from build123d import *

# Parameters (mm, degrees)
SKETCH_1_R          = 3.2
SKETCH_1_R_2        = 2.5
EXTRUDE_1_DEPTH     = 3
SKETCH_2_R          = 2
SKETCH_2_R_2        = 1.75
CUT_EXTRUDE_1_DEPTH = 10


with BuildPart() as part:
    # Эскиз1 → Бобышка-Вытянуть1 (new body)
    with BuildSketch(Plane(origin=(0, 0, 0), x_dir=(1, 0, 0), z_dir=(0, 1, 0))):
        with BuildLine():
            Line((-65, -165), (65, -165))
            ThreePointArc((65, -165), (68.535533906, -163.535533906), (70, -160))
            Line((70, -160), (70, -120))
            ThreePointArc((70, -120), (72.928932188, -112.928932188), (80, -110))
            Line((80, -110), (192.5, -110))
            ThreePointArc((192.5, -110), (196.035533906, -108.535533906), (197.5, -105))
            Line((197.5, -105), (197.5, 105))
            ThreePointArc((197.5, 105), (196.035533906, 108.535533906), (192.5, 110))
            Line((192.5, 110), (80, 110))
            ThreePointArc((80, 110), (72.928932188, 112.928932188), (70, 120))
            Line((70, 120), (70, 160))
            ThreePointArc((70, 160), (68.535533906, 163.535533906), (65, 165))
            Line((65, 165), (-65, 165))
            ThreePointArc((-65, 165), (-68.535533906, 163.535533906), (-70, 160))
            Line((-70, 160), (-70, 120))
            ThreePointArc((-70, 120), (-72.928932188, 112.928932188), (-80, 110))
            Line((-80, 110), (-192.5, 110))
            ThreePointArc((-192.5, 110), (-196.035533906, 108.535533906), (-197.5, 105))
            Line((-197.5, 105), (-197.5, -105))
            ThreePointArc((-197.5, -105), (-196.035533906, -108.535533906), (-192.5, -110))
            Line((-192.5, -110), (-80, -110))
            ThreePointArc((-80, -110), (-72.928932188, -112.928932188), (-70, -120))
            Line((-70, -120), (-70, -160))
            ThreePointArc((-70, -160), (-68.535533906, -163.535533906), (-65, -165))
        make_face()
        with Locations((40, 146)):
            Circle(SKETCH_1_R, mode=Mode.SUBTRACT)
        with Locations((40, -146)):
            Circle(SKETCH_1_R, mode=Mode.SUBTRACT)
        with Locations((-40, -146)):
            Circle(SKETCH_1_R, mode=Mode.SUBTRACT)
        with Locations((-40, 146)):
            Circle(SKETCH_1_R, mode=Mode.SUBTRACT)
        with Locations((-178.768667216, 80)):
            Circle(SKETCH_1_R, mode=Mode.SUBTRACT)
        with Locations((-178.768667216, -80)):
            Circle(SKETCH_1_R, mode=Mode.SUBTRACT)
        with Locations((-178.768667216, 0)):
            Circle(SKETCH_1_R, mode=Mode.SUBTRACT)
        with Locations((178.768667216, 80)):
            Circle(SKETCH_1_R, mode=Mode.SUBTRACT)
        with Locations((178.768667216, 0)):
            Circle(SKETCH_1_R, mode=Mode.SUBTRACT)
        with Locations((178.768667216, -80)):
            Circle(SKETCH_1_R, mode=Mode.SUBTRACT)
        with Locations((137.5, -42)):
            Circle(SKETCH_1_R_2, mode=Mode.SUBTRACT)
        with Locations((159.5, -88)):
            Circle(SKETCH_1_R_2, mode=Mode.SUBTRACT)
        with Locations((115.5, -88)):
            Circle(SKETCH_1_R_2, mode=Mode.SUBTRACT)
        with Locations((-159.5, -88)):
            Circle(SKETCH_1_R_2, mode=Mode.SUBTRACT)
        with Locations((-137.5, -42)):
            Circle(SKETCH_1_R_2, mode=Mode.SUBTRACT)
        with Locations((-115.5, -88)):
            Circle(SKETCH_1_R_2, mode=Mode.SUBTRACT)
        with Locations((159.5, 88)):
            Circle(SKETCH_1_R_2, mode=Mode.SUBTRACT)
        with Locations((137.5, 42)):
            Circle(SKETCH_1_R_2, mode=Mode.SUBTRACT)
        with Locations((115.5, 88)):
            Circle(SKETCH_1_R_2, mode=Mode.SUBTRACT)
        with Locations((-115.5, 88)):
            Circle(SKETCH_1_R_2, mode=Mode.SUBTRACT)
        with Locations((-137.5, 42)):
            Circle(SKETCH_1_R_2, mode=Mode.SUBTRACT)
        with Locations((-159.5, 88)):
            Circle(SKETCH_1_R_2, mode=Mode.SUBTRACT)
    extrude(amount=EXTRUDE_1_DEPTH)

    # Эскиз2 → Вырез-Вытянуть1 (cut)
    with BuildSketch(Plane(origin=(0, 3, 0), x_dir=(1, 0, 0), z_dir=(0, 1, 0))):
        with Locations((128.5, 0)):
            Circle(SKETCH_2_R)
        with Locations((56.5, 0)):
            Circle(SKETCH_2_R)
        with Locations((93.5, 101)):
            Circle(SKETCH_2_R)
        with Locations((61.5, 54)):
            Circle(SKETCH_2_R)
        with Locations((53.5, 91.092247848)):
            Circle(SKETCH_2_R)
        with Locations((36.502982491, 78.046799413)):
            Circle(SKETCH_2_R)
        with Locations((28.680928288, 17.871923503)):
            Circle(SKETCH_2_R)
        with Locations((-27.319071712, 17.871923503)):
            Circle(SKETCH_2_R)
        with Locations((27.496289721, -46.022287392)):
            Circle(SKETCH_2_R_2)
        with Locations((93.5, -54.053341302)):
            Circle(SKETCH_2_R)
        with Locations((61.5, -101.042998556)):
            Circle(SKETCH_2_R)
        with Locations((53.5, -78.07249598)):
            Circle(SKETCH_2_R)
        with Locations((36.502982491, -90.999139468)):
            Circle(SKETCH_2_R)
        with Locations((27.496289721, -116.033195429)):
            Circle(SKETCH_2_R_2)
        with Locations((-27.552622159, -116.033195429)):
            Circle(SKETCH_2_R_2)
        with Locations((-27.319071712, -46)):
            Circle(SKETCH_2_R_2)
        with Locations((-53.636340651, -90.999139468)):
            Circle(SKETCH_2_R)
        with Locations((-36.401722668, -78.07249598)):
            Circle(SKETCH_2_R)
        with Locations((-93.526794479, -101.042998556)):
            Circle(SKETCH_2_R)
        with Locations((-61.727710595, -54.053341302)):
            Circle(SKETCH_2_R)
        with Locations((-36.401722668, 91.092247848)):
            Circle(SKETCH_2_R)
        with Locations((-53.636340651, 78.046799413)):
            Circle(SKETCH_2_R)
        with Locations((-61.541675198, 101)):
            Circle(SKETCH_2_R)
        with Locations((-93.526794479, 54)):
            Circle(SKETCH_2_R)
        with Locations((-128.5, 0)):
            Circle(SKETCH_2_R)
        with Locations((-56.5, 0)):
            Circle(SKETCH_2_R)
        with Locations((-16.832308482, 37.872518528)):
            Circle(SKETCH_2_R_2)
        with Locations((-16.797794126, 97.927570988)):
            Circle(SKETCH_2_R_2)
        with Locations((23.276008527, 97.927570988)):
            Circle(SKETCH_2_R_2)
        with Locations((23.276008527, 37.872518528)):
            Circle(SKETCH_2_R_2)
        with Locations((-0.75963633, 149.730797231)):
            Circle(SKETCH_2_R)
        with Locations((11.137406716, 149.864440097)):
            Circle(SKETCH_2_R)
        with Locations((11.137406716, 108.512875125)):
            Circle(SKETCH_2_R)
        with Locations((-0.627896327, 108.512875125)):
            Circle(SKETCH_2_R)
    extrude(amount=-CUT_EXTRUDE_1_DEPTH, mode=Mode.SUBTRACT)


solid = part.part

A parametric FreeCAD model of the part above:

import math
import FreeCAD as App
import Part
import Sketcher

V = App.Vector

doc = App.newDocument("Part")
params = doc.addObject("Spreadsheet::Sheet", "Params")
for row, (alias, value) in enumerate([
    ("sketch1_diameter", "5 mm"),
    ("sketch1_radius", "5 mm"),
    ("sketch1_radius2", "10 mm"),
    ("sketch1_diameter2", "6.4 mm"),
    ("sketch1_width", "130 mm"),
    ("pad1_length", "3 mm"),
    ("sketch2_diameter", "4 mm"),
    ("sketch2_diameter2", "3.5 mm"),
    ("pocket1_length", "10 mm"),
], start=1):
    params.set(f"A{row}", alias)
    params.set(f"B{row}", "=" + value)
    params.setAlias(f"B{row}", alias)

body = doc.addObject("PartDesign::Body", "Body")

# Sketch on XZ plane
sketch1 = body.newObject("Sketcher::SketchObject", "Sketch")
sketch1.AttachmentSupport = (doc.getObject("XZ_Plane"), [""])
sketch1.MapMode = "FlatFace"
sketch1.addGeometry([
    Part.LineSegment(V(-65, 165, 0), V(65, 165, 0)),  # 0
    Part.ArcOfCircle(Part.Circle(V(65, 160, 0), V(0, 0, 1), 5), math.radians(0), math.radians(90)),  # 1
    Part.LineSegment(V(70, 160, 0), V(70, 120, 0)),  # 2
    Part.ArcOfCircle(Part.Circle(V(80, 120, 0), V(0, 0, 1), 10), math.radians(180), math.radians(270)),  # 3
    Part.LineSegment(V(80, 110, 0), V(192.5, 110, 0)),  # 4
    Part.ArcOfCircle(Part.Circle(V(192.5, 105, 0), V(0, 0, 1), 5), math.radians(0), math.radians(90)),  # 5
    Part.LineSegment(V(197.5, 105, 0), V(197.5, -105, 0)),  # 6
    Part.ArcOfCircle(Part.Circle(V(192.5, -105, 0), V(0, 0, 1), 5), math.radians(-90), math.radians(0)),  # 7
    Part.LineSegment(V(192.5, -110, 0), V(80, -110, 0)),  # 8
    Part.ArcOfCircle(Part.Circle(V(80, -120, 0), V(0, 0, 1), 10), math.radians(90), math.radians(180)),  # 9
    Part.LineSegment(V(70, -120, 0), V(70, -160, 0)),  # 10
    Part.ArcOfCircle(Part.Circle(V(65, -160, 0), V(0, 0, 1), 5), math.radians(-90), math.radians(0)),  # 11
    Part.LineSegment(V(65, -165, 0), V(-65, -165, 0)),  # 12
    Part.ArcOfCircle(Part.Circle(V(-65, -160, 0), V(0, 0, 1), 5), math.radians(180), math.radians(270)),  # 13
    Part.LineSegment(V(-70, -160, 0), V(-70, -120, 0)),  # 14
    Part.ArcOfCircle(Part.Circle(V(-80, -120, 0), V(0, 0, 1), 10), math.radians(0), math.radians(90)),  # 15
    Part.LineSegment(V(-80, -110, 0), V(-192.5, -110, 0)),  # 16
    Part.ArcOfCircle(Part.Circle(V(-192.5, -105, 0), V(0, 0, 1), 5), math.radians(180), math.radians(270)),  # 17
    Part.LineSegment(V(-197.5, -105, 0), V(-197.5, 105, 0)),  # 18
    Part.ArcOfCircle(Part.Circle(V(-192.5, 105, 0), V(0, 0, 1), 5), math.radians(90), math.radians(180)),  # 19
    Part.LineSegment(V(-192.5, 110, 0), V(-80, 110, 0)),  # 20
    Part.ArcOfCircle(Part.Circle(V(-80, 120, 0), V(0, 0, 1), 10), math.radians(-90), math.radians(0)),  # 21
    Part.LineSegment(V(-70, 120, 0), V(-70, 160, 0)),  # 22
    Part.ArcOfCircle(Part.Circle(V(-65, 160, 0), V(0, 0, 1), 5), math.radians(90), math.radians(180)),  # 23
    Part.Circle(V(-159.5, 88, 0), V(0, 0, 1), 2.5),  # 24
    Part.Circle(V(-178.8, 80, 0), V(0, 0, 1), 3.2),  # 25
    Part.Circle(V(-115.5, 88, 0), V(0, 0, 1), 2.5),  # 26
    Part.Circle(V(-40, 146, 0), V(0, 0, 1), 3.2),  # 27
    Part.Circle(V(-137.5, 42, 0), V(0, 0, 1), 2.5),  # 28
    Part.Circle(V(-178.8, 0, 0), V(0, 0, 1), 3.2),  # 29
    Part.Circle(V(40, 146, 0), V(0, 0, 1), 3.2),  # 30
    Part.Circle(V(115.5, 88, 0), V(0, 0, 1), 2.5),  # 31
    Part.Circle(V(159.5, 88, 0), V(0, 0, 1), 2.5),  # 32
    Part.Circle(V(178.8, 80, 0), V(0, 0, 1), 3.2),  # 33
    Part.Circle(V(137.5, 42, 0), V(0, 0, 1), 2.5),  # 34
    Part.Circle(V(178.8, 0, 0), V(0, 0, 1), 3.2),  # 35
    Part.Circle(V(-137.5, -42, 0), V(0, 0, 1), 2.5),  # 36
    Part.Circle(V(-178.8, -80, 0), V(0, 0, 1), 3.2),  # 37
    Part.Circle(V(-159.5, -88, 0), V(0, 0, 1), 2.5),  # 38
    Part.Circle(V(-115.5, -88, 0), V(0, 0, 1), 2.5),  # 39
    Part.Circle(V(-40, -146, 0), V(0, 0, 1), 3.2),  # 40
    Part.Circle(V(137.5, -42, 0), V(0, 0, 1), 2.5),  # 41
    Part.Circle(V(40, -146, 0), V(0, 0, 1), 3.2),  # 42
    Part.Circle(V(115.5, -88, 0), V(0, 0, 1), 2.5),  # 43
    Part.Circle(V(178.8, -80, 0), V(0, 0, 1), 3.2),  # 44
    Part.Circle(V(159.5, -88, 0), V(0, 0, 1), 2.5),  # 45
], False)
sketch1.addConstraint([
    Sketcher.Constraint("Tangent", 0, 2, 1, 2),
    Sketcher.Constraint("Tangent", 1, 1, 2, 1),
    Sketcher.Constraint("Tangent", 2, 2, 3, 1),
    Sketcher.Constraint("Tangent", 3, 2, 4, 1),
    Sketcher.Constraint("Tangent", 4, 2, 5, 2),
    Sketcher.Constraint("Tangent", 5, 1, 6, 1),
    Sketcher.Constraint("Tangent", 6, 2, 7, 2),
    Sketcher.Constraint("Tangent", 7, 1, 8, 1),
    Sketcher.Constraint("Tangent", 8, 2, 9, 1),
    Sketcher.Constraint("Tangent", 9, 2, 10, 1),
    Sketcher.Constraint("Tangent", 10, 2, 11, 2),
    Sketcher.Constraint("Tangent", 11, 1, 12, 1),
    Sketcher.Constraint("Tangent", 12, 2, 13, 2),
    Sketcher.Constraint("Tangent", 13, 1, 14, 1),
    Sketcher.Constraint("Tangent", 14, 2, 15, 1),
    Sketcher.Constraint("Tangent", 15, 2, 16, 1),
    Sketcher.Constraint("Tangent", 16, 2, 17, 2),
    Sketcher.Constraint("Tangent", 17, 1, 18, 1),
    Sketcher.Constraint("Tangent", 18, 2, 19, 2),
    Sketcher.Constraint("Tangent", 19, 1, 20, 1),
    Sketcher.Constraint("Tangent", 20, 2, 21, 1),
    Sketcher.Constraint("Tangent", 21, 2, 22, 1),
    Sketcher.Constraint("Tangent", 22, 2, 23, 2),
    Sketcher.Constraint("Tangent", 23, 1, 0, 1),
    Sketcher.Constraint("Horizontal", 0),
    Sketcher.Constraint("Vertical", 2),
    Sketcher.Constraint("Horizontal", 4),
    Sketcher.Constraint("Vertical", 6),
    Sketcher.Constraint("Horizontal", 8),
    Sketcher.Constraint("Vertical", 10),
    Sketcher.Constraint("Horizontal", 12),
    Sketcher.Constraint("Vertical", 14),
    Sketcher.Constraint("Horizontal", 16),
    Sketcher.Constraint("Vertical", 18),
    Sketcher.Constraint("Horizontal", 20),
    Sketcher.Constraint("Vertical", 22),
    Sketcher.Constraint("Equal", 1, 5),
    Sketcher.Constraint("Equal", 5, 7),
    Sketcher.Constraint("Equal", 3, 9),
    Sketcher.Constraint("Equal", 7, 11),
    Sketcher.Constraint("Equal", 11, 13),
    Sketcher.Constraint("Equal", 9, 15),
    Sketcher.Constraint("Equal", 13, 17),
    Sketcher.Constraint("Equal", 17, 19),
    Sketcher.Constraint("Equal", 15, 21),
    Sketcher.Constraint("Equal", 19, 23),
    Sketcher.Constraint("Equal", 24, 26),
    Sketcher.Constraint("Equal", 25, 27),
    Sketcher.Constraint("Equal", 26, 28),
    Sketcher.Constraint("Equal", 27, 29),
    Sketcher.Constraint("Equal", 29, 30),
    Sketcher.Constraint("Equal", 28, 31),
    Sketcher.Constraint("Equal", 31, 32),
    Sketcher.Constraint("Equal", 30, 33),
    Sketcher.Constraint("Equal", 32, 34),
    Sketcher.Constraint("Equal", 33, 35),
    Sketcher.Constraint("Equal", 34, 36),
    Sketcher.Constraint("Equal", 35, 37),
    Sketcher.Constraint("Equal", 36, 38),
    Sketcher.Constraint("Equal", 38, 39),
    Sketcher.Constraint("Equal", 37, 40),
    Sketcher.Constraint("Equal", 39, 41),
    Sketcher.Constraint("Equal", 40, 42),
    Sketcher.Constraint("Equal", 41, 43),
    Sketcher.Constraint("Equal", 42, 44),
    Sketcher.Constraint("Equal", 43, 45),
    Sketcher.Constraint("Symmetric", 1, 3, 13, 3, -1, 1),
    Sketcher.Constraint("Symmetric", 5, 3, 17, 3, -1, 1),
    Sketcher.Constraint("Symmetric", 9, 3, 21, 3, -1, 1),
    Sketcher.Constraint("Symmetric", 29, 3, 35, 3, -1, 1),
    Sketcher.Constraint("Symmetric", 34, 3, 36, 3, -1, 1),
    Sketcher.Constraint("Symmetric", 33, 3, 37, 3, -1, 1),
    Sketcher.Constraint("Symmetric", 32, 3, 38, 3, -1, 1),
    Sketcher.Constraint("Symmetric", 31, 3, 39, 3, -1, 1),
    Sketcher.Constraint("Symmetric", 30, 3, 40, 3, -1, 1),
    Sketcher.Constraint("Symmetric", 28, 3, 41, 3, -1, 1),
    Sketcher.Constraint("Symmetric", 27, 3, 42, 3, -1, 1),
    Sketcher.Constraint("Symmetric", 26, 3, 43, 3, -1, 1),
    Sketcher.Constraint("Symmetric", 25, 3, 44, 3, -1, 1),
    Sketcher.Constraint("Symmetric", 24, 3, 45, 3, -1, 1),
    Sketcher.Constraint("Symmetric", 9, 3, 15, 3, -2),
    Sketcher.Constraint("Symmetric", 27, 3, 30, 3, -2),
    Sketcher.Constraint("Symmetric", 26, 3, 31, 3, -2),
    Sketcher.Constraint("Symmetric", 24, 3, 32, 3, -2),
    Sketcher.Constraint("Symmetric", 25, 3, 33, 3, -2),
    Sketcher.Constraint("Symmetric", 28, 3, 34, 3, -2),
    Sketcher.Constraint("PointOnObject", 29, 3, -1),
    Sketcher.Constraint("Horizontal", 24, 3, 26, 3),
    Sketcher.Constraint("Vertical", 25, 3, 29, 3),
    Sketcher.Constraint("Diameter", 24, 5.0),
    Sketcher.Constraint("Radius", 1, 5.0),
    Sketcher.Constraint("Radius", 3, 10.0),
    Sketcher.Constraint("Diameter", 25, 6.4),
    Sketcher.Constraint("DistanceX", 0, 1, 0, 2, 130.0),
    Sketcher.Constraint("DistanceY", 2, 2, 2, 1, 40.0),
    Sketcher.Constraint("DistanceY", 6, 2, 6, 1, 210.0),
    Sketcher.Constraint("DistanceX", 4, 1, 4, 2, 112.5),
    Sketcher.Constraint("DistanceY", -1, 1, 24, 3, 88.0),
    Sketcher.Constraint("DistanceY", -1, 1, 25, 3, 80.0),
    Sketcher.Constraint("DistanceX", 27, 3, -1, 1, 40.0),
    Sketcher.Constraint("DistanceY", -1, 1, 27, 3, 146.0),
    Sketcher.Constraint("DistanceY", -1, 1, 28, 3, 42.0),
    Sketcher.Constraint("DistanceX", 19, 3, 24, 3, 33.0),
    Sketcher.Constraint("DistanceX", 24, 3, 26, 3, 44.0),
    Sketcher.Constraint("DistanceX", 24, 3, 28, 3, 22.0),
    Sketcher.Constraint("DistanceX", 25, 3, -1, 1, 178.768667),
])
sketch1.setExpression("Constraints[89]", "Params.sketch1_diameter")
sketch1.setExpression("Constraints[90]", "Params.sketch1_radius")
sketch1.setExpression("Constraints[91]", "Params.sketch1_radius2")
sketch1.setExpression("Constraints[92]", "Params.sketch1_diameter2")
sketch1.setExpression("Constraints[93]", "Params.sketch1_width")
pad1 = body.newObject("PartDesign::Pad", "Pad")
pad1.Profile = sketch1
pad1.setExpression("Length", "Params.pad1_length")
pad1.Reversed = True

# Sketch on XZ plane
sketch2 = body.newObject("Sketcher::SketchObject", "Sketch001")
sketch2.AttachmentSupport = (doc.getObject("XZ_Plane"), [""])
sketch2.MapMode = "FlatFace"
sketch2.AttachmentOffset = App.Placement(V(0, 0, -3), App.Rotation())
sketch2.addGeometry([
    Part.Circle(V(128.5, 0, 0), V(0, 0, 1), 2),  # 0
    Part.Circle(V(56.5, 0, 0), V(0, 0, 1), 2),  # 1
    Part.Circle(V(93.5, -101, 0), V(0, 0, 1), 2),  # 2
    Part.Circle(V(61.5, -54, 0), V(0, 0, 1), 2),  # 3
    Part.Circle(V(53.5, -91.1, 0), V(0, 0, 1), 2),  # 4
    Part.Circle(V(36.5, -78, 0), V(0, 0, 1), 2),  # 5
    Part.Circle(V(28.7, -17.9, 0), V(0, 0, 1), 2),  # 6
    Part.Circle(V(-27.3, -17.9, 0), V(0, 0, 1), 2),  # 7
    Part.Circle(V(27.5, 46, 0), V(0, 0, 1), 1.8),  # 8
    Part.Circle(V(93.5, 54.1, 0), V(0, 0, 1), 2),  # 9
    Part.Circle(V(61.5, 101, 0), V(0, 0, 1), 2),  # 10
    Part.Circle(V(53.5, 78.1, 0), V(0, 0, 1), 2),  # 11
    Part.Circle(V(36.5, 91, 0), V(0, 0, 1), 2),  # 12
    Part.Circle(V(27.5, 116, 0), V(0, 0, 1), 1.8),  # 13
    Part.Circle(V(-27.6, 116, 0), V(0, 0, 1), 1.8),  # 14
    Part.Circle(V(-27.3, 46, 0), V(0, 0, 1), 1.8),  # 15
    Part.Circle(V(-53.6, 91, 0), V(0, 0, 1), 2),  # 16
    Part.Circle(V(-36.4, 78.1, 0), V(0, 0, 1), 2),  # 17
    Part.Circle(V(-93.5, 101, 0), V(0, 0, 1), 2),  # 18
    Part.Circle(V(-61.7, 54.1, 0), V(0, 0, 1), 2),  # 19
    Part.Circle(V(-36.4, -91.1, 0), V(0, 0, 1), 2),  # 20
    Part.Circle(V(-53.6, -78, 0), V(0, 0, 1), 2),  # 21
    Part.Circle(V(-61.5, -101, 0), V(0, 0, 1), 2),  # 22
    Part.Circle(V(-93.5, -54, 0), V(0, 0, 1), 2),  # 23
    Part.Circle(V(-128.5, 0, 0), V(0, 0, 1), 2),  # 24
    Part.Circle(V(-56.5, 0, 0), V(0, 0, 1), 2),  # 25
    Part.Circle(V(-16.8, -37.9, 0), V(0, 0, 1), 1.8),  # 26
    Part.Circle(V(-16.8, -97.9, 0), V(0, 0, 1), 1.8),  # 27
    Part.Circle(V(23.3, -97.9, 0), V(0, 0, 1), 1.8),  # 28
    Part.Circle(V(23.3, -37.9, 0), V(0, 0, 1), 1.8),  # 29
    Part.Circle(V(-0.8, -149.7, 0), V(0, 0, 1), 2),  # 30
    Part.Circle(V(11.1, -149.9, 0), V(0, 0, 1), 2),  # 31
    Part.Circle(V(11.1, -108.5, 0), V(0, 0, 1), 2),  # 32
    Part.Circle(V(-0.6, -108.5, 0), V(0, 0, 1), 2),  # 33
], False)
sketch2.addConstraint([
    Sketcher.Constraint("Equal", 0, 1),
    Sketcher.Constraint("Equal", 1, 2),
    Sketcher.Constraint("Equal", 2, 3),
    Sketcher.Constraint("Equal", 3, 4),
    Sketcher.Constraint("Equal", 4, 5),
    Sketcher.Constraint("Equal", 5, 6),
    Sketcher.Constraint("Equal", 6, 7),
    Sketcher.Constraint("Equal", 7, 9),
    Sketcher.Constraint("Equal", 9, 10),
    Sketcher.Constraint("Equal", 10, 11),
    Sketcher.Constraint("Equal", 11, 12),
    Sketcher.Constraint("Equal", 8, 13),
    Sketcher.Constraint("Equal", 13, 14),
    Sketcher.Constraint("Equal", 14, 15),
    Sketcher.Constraint("Equal", 12, 16),
    Sketcher.Constraint("Equal", 16, 17),
    Sketcher.Constraint("Equal", 17, 18),
    Sketcher.Constraint("Equal", 18, 19),
    Sketcher.Constraint("Equal", 19, 20),
    Sketcher.Constraint("Equal", 20, 21),
    Sketcher.Constraint("Equal", 21, 22),
    Sketcher.Constraint("Equal", 22, 23),
    Sketcher.Constraint("Equal", 23, 24),
    Sketcher.Constraint("Equal", 24, 25),
    Sketcher.Constraint("Equal", 15, 26),
    Sketcher.Constraint("Equal", 26, 27),
    Sketcher.Constraint("Equal", 27, 28),
    Sketcher.Constraint("Equal", 28, 29),
    Sketcher.Constraint("Equal", 25, 30),
    Sketcher.Constraint("Equal", 30, 31),
    Sketcher.Constraint("Equal", 31, 32),
    Sketcher.Constraint("Equal", 32, 33),
    Sketcher.Constraint("Symmetric", 0, 3, 24, 3, -1, 1),
    Sketcher.Constraint("Symmetric", 1, 3, 25, 3, -1, 1),
    Sketcher.Constraint("PointOnObject", 0, 3, -1),
    Sketcher.Constraint("PointOnObject", 1, 3, -1),
    Sketcher.Constraint("Horizontal", 6, 3, 7, 3),
    Sketcher.Constraint("Horizontal", 13, 3, 14, 3),
    Sketcher.Constraint("Horizontal", 12, 3, 16, 3),
    Sketcher.Constraint("Horizontal", 11, 3, 17, 3),
    Sketcher.Constraint("Horizontal", 10, 3, 18, 3),
    Sketcher.Constraint("Horizontal", 9, 3, 19, 3),
    Sketcher.Constraint("Horizontal", 4, 3, 20, 3),
    Sketcher.Constraint("Horizontal", 5, 3, 21, 3),
    Sketcher.Constraint("Horizontal", 2, 3, 22, 3),
    Sketcher.Constraint("Horizontal", 3, 3, 23, 3),
    Sketcher.Constraint("Horizontal", 27, 3, 28, 3),
    Sketcher.Constraint("Horizontal", 26, 3, 29, 3),
    Sketcher.Constraint("Horizontal", 32, 3, 33, 3),
    Sketcher.Constraint("Vertical", 2, 3, 9, 3),
    Sketcher.Constraint("Vertical", 3, 3, 10, 3),
    Sketcher.Constraint("Vertical", 4, 3, 11, 3),
    Sketcher.Constraint("Vertical", 5, 3, 12, 3),
    Sketcher.Constraint("Vertical", 8, 3, 13, 3),
    Sketcher.Constraint("Vertical", 7, 3, 15, 3),
    Sketcher.Constraint("Vertical", 17, 3, 20, 3),
    Sketcher.Constraint("Vertical", 16, 3, 21, 3),
    Sketcher.Constraint("Vertical", 18, 3, 23, 3),
    Sketcher.Constraint("Vertical", 28, 3, 29, 3),
    Sketcher.Constraint("Vertical", 31, 3, 32, 3),
    Sketcher.Constraint("Diameter", 0, 4.0),
    Sketcher.Constraint("Diameter", 8, 3.5),
    Sketcher.Constraint("DistanceY", 2, 3, -1, 1, 101.0),
    Sketcher.Constraint("DistanceY", 3, 3, -1, 1, 54.0),
    Sketcher.Constraint("DistanceY", -1, 1, 15, 3, 46.0),
    Sketcher.Constraint("DistanceX", 1, 3, 0, 3, 72.0),
    Sketcher.Constraint("DistanceX", 2, 3, 0, 3, 35.0),
    Sketcher.Constraint("DistanceX", 1, 3, 3, 3, 5.0),
    Sketcher.Constraint("DistanceX", 4, 3, 3, 3, 8.0),
    Sketcher.Constraint("DistanceX", 7, 3, 6, 3, 56.0),
    Sketcher.Constraint("DistanceX", -1, 1, 0, 3, 128.5),
    Sketcher.Constraint("DistanceY", -1, 1, 10, 3, 101.042999),
    Sketcher.Constraint("DistanceY", 5, 3, -1, 1, 78.046799),
    Sketcher.Constraint("DistanceY", 9, 3, 12, 3, 36.945798),
    Sketcher.Constraint("DistanceY", 11, 3, 13, 3, 37.960699),
    Sketcher.Constraint("DistanceX", 17, 3, 14, 3, 8.849101),
    Sketcher.Constraint("DistanceX", 31, 3, 28, 3, 12.138602),
    Sketcher.Constraint("DistanceX", 27, 3, 31, 3, 27.935201),
    Sketcher.Constraint("DistanceX", -1, 1, 6, 3, 28.680928),
    Sketcher.Constraint("DistanceX", -1, 1, 8, 3, 27.49629),
    Sketcher.Constraint("DistanceY", -1, 1, 9, 3, 54.053341),
    Sketcher.Constraint("DistanceX", 16, 3, -1, 1, 53.636341),
    Sketcher.Constraint("DistanceX", 19, 3, -1, 1, 61.727711),
    Sketcher.Constraint("DistanceX", 26, 3, -1, 1, 16.832308),
    Sketcher.Constraint("DistanceY", 26, 3, -1, 1, 37.872519),
    Sketcher.Constraint("DistanceY", 27, 3, -1, 1, 97.927571),
    Sketcher.Constraint("DistanceX", -1, 1, 28, 3, 23.276009),
    Sketcher.Constraint("DistanceY", 31, 3, -1, 1, 149.86444),
    Sketcher.Constraint("DistanceY", 4, 3, 5, 3, 13.045448),
    Sketcher.Constraint("DistanceY", 6, 3, 8, 3, 63.894211),
    Sketcher.Constraint("DistanceY", 8, 3, 10, 3, 55.020711),
    Sketcher.Constraint("DistanceY", 8, 3, 11, 3, 32.050209),
    Sketcher.Constraint("DistanceX", 14, 3, 13, 3, 55.048912),
    Sketcher.Constraint("DistanceX", 18, 3, 17, 3, 57.125072),
    Sketcher.Constraint("DistanceX", 23, 3, 22, 3, 31.985119),
    Sketcher.Constraint("DistanceY", 30, 3, 20, 3, 58.638549),
    Sketcher.Constraint("DistanceX", 22, 3, 30, 3, 60.782039),
    Sketcher.Constraint("DistanceX", 30, 3, 33, 3, 0.13174),
    Sketcher.Constraint("DistanceX", -1, 1, 5, 3, 36.502982),
    Sketcher.Constraint("DistanceY", 32, 3, -1, 1, 108.512875),
])
sketch2.setExpression("Constraints[60]", "Params.sketch2_diameter")
sketch2.setExpression("Constraints[61]", "Params.sketch2_diameter2")
pocket1 = body.newObject("PartDesign::Pocket", "Pocket")
pocket1.Profile = sketch2
pocket1.setExpression("Length", "Params.pocket1_length")
pocket1.Reversed = True

doc.recompute()
